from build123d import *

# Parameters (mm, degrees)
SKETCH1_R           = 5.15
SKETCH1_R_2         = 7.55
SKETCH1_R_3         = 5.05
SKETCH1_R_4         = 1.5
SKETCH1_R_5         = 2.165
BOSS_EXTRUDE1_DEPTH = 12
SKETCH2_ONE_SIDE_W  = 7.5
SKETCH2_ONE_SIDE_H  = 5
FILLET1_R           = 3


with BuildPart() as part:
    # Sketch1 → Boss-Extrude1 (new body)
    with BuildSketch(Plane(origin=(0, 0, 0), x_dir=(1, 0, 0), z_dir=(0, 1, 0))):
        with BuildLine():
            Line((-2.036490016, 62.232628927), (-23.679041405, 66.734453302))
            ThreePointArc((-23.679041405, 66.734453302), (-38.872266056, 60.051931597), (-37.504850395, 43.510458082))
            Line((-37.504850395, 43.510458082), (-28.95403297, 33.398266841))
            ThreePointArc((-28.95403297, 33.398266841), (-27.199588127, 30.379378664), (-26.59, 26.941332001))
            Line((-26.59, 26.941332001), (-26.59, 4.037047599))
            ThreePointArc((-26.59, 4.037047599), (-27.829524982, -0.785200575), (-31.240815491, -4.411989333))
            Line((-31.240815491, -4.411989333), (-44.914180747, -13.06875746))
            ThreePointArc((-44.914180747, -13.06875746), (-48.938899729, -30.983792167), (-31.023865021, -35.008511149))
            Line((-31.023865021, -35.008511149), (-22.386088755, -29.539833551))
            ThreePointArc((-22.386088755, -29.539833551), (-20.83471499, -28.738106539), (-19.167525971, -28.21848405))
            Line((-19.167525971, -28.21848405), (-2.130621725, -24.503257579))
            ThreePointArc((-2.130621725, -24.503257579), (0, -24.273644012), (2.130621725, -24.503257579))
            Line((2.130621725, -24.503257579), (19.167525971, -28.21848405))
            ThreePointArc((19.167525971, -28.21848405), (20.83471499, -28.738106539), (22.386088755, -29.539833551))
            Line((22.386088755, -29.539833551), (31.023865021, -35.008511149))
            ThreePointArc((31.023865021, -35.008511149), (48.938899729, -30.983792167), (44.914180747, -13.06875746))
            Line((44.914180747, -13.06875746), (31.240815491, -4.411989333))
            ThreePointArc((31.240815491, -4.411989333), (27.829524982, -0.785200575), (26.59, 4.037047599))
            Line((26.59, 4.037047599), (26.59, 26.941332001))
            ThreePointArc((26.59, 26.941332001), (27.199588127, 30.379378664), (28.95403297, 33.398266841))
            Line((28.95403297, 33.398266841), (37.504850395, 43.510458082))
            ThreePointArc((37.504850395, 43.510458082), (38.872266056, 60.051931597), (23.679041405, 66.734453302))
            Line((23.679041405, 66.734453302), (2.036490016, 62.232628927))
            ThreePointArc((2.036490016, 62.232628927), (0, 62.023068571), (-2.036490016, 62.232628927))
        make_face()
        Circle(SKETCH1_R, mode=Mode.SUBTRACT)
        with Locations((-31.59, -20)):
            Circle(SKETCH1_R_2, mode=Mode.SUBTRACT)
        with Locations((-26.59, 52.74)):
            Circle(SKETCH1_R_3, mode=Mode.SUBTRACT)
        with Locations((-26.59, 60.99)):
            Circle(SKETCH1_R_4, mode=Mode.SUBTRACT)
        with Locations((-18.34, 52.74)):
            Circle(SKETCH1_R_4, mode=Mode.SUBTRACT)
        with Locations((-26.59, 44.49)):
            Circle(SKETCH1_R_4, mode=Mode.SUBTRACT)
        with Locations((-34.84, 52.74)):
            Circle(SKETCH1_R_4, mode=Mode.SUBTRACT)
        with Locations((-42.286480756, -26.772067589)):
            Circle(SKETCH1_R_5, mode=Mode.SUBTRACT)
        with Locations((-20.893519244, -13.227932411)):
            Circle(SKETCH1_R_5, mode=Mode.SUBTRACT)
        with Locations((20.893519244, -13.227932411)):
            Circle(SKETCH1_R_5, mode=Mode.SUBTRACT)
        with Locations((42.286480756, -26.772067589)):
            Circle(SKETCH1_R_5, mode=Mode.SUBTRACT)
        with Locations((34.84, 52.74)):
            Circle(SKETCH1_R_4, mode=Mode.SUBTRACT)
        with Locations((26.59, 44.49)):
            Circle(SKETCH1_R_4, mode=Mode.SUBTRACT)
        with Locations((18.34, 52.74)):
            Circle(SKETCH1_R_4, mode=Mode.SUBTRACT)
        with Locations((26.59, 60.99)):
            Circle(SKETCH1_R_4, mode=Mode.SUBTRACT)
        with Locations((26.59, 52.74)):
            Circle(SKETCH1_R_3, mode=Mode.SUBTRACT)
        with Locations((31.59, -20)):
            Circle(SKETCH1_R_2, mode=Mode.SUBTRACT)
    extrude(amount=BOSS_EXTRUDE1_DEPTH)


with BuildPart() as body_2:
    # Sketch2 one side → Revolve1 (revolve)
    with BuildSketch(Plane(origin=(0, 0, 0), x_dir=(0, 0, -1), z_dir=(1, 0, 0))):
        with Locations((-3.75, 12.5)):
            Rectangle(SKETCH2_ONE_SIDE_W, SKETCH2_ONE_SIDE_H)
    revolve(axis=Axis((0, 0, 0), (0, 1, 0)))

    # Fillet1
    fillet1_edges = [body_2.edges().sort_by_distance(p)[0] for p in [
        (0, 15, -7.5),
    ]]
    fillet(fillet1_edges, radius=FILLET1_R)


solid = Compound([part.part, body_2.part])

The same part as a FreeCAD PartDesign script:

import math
import FreeCAD as App
import Part
import Sketcher
from FreeCAD import Vector


def edges_at(feature, points):
    """Names of the edges that pass closest to the given points."""
    edges = feature.Shape.Edges
    near = lambda p: min(range(len(edges)), key=lambda i: edges[i].distToShape(Part.Vertex(*p))[0])
    return sorted({f"Edge{near(p) + 1}" for p in points})


def add_polygon(sketch, points):
    """Adds a closed chain of lines whose ends are joined by coincident constraints."""
    first, n = sketch.GeometryCount, len(points)
    for a, b in zip(points, points[1:] + points[:1]):
        sketch.addGeometry(Part.LineSegment(App.Vector(*a, 0), App.Vector(*b, 0)), False)
    for i in range(n):
        sketch.addConstraint(Sketcher.Constraint("Coincident", first + i, 2, first + (i + 1) % n, 1))

doc = App.newDocument("Part")
body = doc.addObject("PartDesign::Body", "Body")

# Sketch on XZ plane
sketch1 = body.newObject("Sketcher::SketchObject", "Sketch")
sketch1.AttachmentSupport = (doc.getObject("XZ_Plane"), [""])
sketch1.MapMode = "FlatFace"
sketch1.addGeometry(Part.LineSegment(Vector(-2, -62.2, 0), Vector(-23.7, -66.7, 0)), False)
sketch1.addGeometry(Part.ArcOfCircle(Part.Circle(Vector(-26.6, -52.7, 0), Vector(0, 0, 1), 14.3), math.radians(140), math.radians(282)), False)
sketch1.addGeometry(Part.LineSegment(Vector(-37.5, -43.5, 0), Vector(-29, -33.4, 0)), False)
sketch1.addGeometry(Part.ArcOfCircle(Part.Circle(Vector(-36.6, -26.9, 0), Vector(0, 0, 1), 10), math.radians(-40), math.radians(0)), False)
sketch1.addGeometry(Part.LineSegment(Vector(-26.6, -26.9, 0), Vector(-26.6, -4, 0)), False)
sketch1.addGeometry(Part.ArcOfCircle(Part.Circle(Vector(-36.6, -4, 0), Vector(0, 0, 1), 10), math.radians(0), math.radians(58)), False)
sketch1.addGeometry(Part.LineSegment(Vector(-31.2, 4.4, 0), Vector(-44.9, 13.1, 0)), False)
sketch1.addGeometry(Part.ArcOfCircle(Part.Circle(Vector(-38, 24, 0), Vector(0, 0, 1), 13), math.radians(58), math.radians(238)), False)
sketch1.addGeometry(Part.LineSegment(Vector(-31, 35, 0), Vector(-22.4, 29.5, 0)), False)
sketch1.addGeometry(Part.ArcOfCircle(Part.Circle(Vector(-17, 38, 0), Vector(0, 0, 1), 10), math.radians(-122), math.radians(-102)), False)
sketch1.addGeometry(Part.LineSegment(Vector(-19.2, 28.2, 0), Vector(-2.1, 24.5, 0)), False)
sketch1.addGeometry(Part.ArcOfCircle(Part.Circle(Vector(0, 34.3, 0), Vector(0, 0, 1), 10), math.radians(-102), math.radians(-78)), False)
sketch1.addGeometry(Part.LineSegment(Vector(2.1, 24.5, 0), Vector(19.2, 28.2, 0)), False)
sketch1.addGeometry(Part.ArcOfCircle(Part.Circle(Vector(17, 38, 0), Vector(0, 0, 1), 10), math.radians(-78), math.radians(-58)), False)
sketch1.addGeometry(Part.LineSegment(Vector(22.4, 29.5, 0), Vector(31, 35, 0)), False)
sketch1.addGeometry(Part.ArcOfCircle(Part.Circle(Vector(38, 24, 0), Vector(0, 0, 1), 13), math.radians(-58), math.radians(122)), False)
sketch1.addGeometry(Part.LineSegment(Vector(44.9, 13.1, 0), Vector(31.2, 4.4, 0)), False)
sketch1.addGeometry(Part.ArcOfCircle(Part.Circle(Vector(36.6, -4, 0), Vector(0, 0, 1), 10), math.radians(122), math.radians(180)), False)
sketch1.addGeometry(Part.LineSegment(Vector(26.6, -4, 0), Vector(26.6, -26.9, 0)), False)
sketch1.addGeometry(Part.ArcOfCircle(Part.Circle(Vector(36.6, -26.9, 0), Vector(0, 0, 1), 10), math.radians(180), math.radians(220)), False)
sketch1.addGeometry(Part.LineSegment(Vector(29, -33.4, 0), Vector(37.5, -43.5, 0)), False)
sketch1.addGeometry(Part.ArcOfCircle(Part.Circle(Vector(26.6, -52.7, 0), Vector(0, 0, 1), 14.3), math.radians(-102), math.radians(40)), False)
sketch1.addGeometry(Part.LineSegment(Vector(23.7, -66.7, 0), Vector(2, -62.2, 0)), False)
sketch1.addGeometry(Part.ArcOfCircle(Part.Circle(Vector(0, -72, 0), Vector(0, 0, 1), 10), math.radians(78), math.radians(102)), False)
sketch1.addGeometry(Part.Circle(Vector(-42.3, 26.8, 0), Vector(0, 0, 1), 2.2), False)
sketch1.addGeometry(Part.Circle(Vector(-31.6, 20, 0), Vector(0, 0, 1), 7.5), False)
sketch1.addGeometry(Part.Circle(Vector(-20.9, 13.2, 0), Vector(0, 0, 1), 2.2), False)
sketch1.addGeometry(Part.Circle(Vector(20.9, 13.2, 0), Vector(0, 0, 1), 2.2), False)
sketch1.addGeometry(Part.Circle(Vector(31.6, 20, 0), Vector(0, 0, 1), 7.5), False)
sketch1.addGeometry(Part.Circle(Vector(42.3, 26.8, 0), Vector(0, 0, 1), 2.2), False)
sketch1.addGeometry(Part.Circle(Vector(0, 0, 0), Vector(0, 0, 1), 5.2), False)
sketch1.addGeometry(Part.Circle(Vector(-26.6, -44.5, 0), Vector(0, 0, 1), 1.5), False)
sketch1.addGeometry(Part.Circle(Vector(-34.8, -52.7, 0), Vector(0, 0, 1), 1.5), False)
sketch1.addGeometry(Part.Circle(Vector(-26.6, -52.7, 0), Vector(0, 0, 1), 5), False)
sketch1.addGeometry(Part.Circle(Vector(-26.6, -61, 0), Vector(0, 0, 1), 1.5), False)
sketch1.addGeometry(Part.Circle(Vector(-18.3, -52.7, 0), Vector(0, 0, 1), 1.5), False)
sketch1.addGeometry(Part.Circle(Vector(18.3, -52.7, 0), Vector(0, 0, 1), 1.5), False)
sketch1.addGeometry(Part.Circle(Vector(26.6, -44.5, 0), Vector(0, 0, 1), 1.5), False)
sketch1.addGeometry(Part.Circle(Vector(26.6, -52.7, 0), Vector(0, 0, 1), 5), False)
sketch1.addGeometry(Part.Circle(Vector(26.6, -61, 0), Vector(0, 0, 1), 1.5), False)
sketch1.addGeometry(Part.Circle(Vector(34.8, -52.7, 0), Vector(0, 0, 1), 1.5), False)
sketch1.addConstraint(Sketcher.Constraint("Tangent", 0, 2, 1, 2))
sketch1.addConstraint(Sketcher.Constraint("Tangent", 1, 1, 2, 1))
sketch1.addConstraint(Sketcher.Constraint("Tangent", 2, 2, 3, 1))
sketch1.addConstraint(Sketcher.Constraint("Tangent", 3, 2, 4, 1))
sketch1.addConstraint(Sketcher.Constraint("Tangent", 4, 2, 5, 1))
sketch1.addConstraint(Sketcher.Constraint("Tangent", 5, 2, 6, 1))
sketch1.addConstraint(Sketcher.Constraint("Tangent", 6, 2, 7, 2))
sketch1.addConstraint(Sketcher.Constraint("Tangent", 7, 1, 8, 1))
sketch1.addConstraint(Sketcher.Constraint("Tangent", 8, 2, 9, 1))
sketch1.addConstraint(Sketcher.Constraint("Tangent", 9, 2, 10, 1))
sketch1.addConstraint(Sketcher.Constraint("Tangent", 10, 2, 11, 1))
sketch1.addConstraint(Sketcher.Constraint("Tangent", 11, 2, 12, 1))
sketch1.addConstraint(Sketcher.Constraint("Tangent", 12, 2, 13, 1))
sketch1.addConstraint(Sketcher.Constraint("Tangent", 13, 2, 14, 1))
sketch1.addConstraint(Sketcher.Constraint("Tangent", 14, 2, 15, 2))
sketch1.addConstraint(Sketcher.Constraint("Tangent", 15, 1, 16, 1))
sketch1.addConstraint(Sketcher.Constraint("Tangent", 16, 2, 17, 1))
sketch1.addConstraint(Sketcher.Constraint("Tangent", 17, 2, 18, 1))
sketch1.addConstraint(Sketcher.Constraint("Tangent", 18, 2, 19, 1))
sketch1.addConstraint(Sketcher.Constraint("Tangent", 19, 2, 20, 1))
sketch1.addConstraint(Sketcher.Constraint("Tangent", 20, 2, 21, 2))
sketch1.addConstraint(Sketcher.Constraint("Tangent", 21, 1, 22, 1))
sketch1.addConstraint(Sketcher.Constraint("Tangent", 22, 2, 23, 1))
sketch1.addConstraint(Sketcher.Constraint("Tangent", 23, 2, 0, 1))
sketch1.addConstraint(Sketcher.Constraint("Vertical", 4))
sketch1.addConstraint(Sketcher.Constraint("Vertical", 18))
sketch1.addConstraint(Sketcher.Constraint("Coincident", 30, 3, -1, 1))
sketch1.addConstraint(Sketcher.Constraint("Coincident", 33, 3, 1, 3))
sketch1.addConstraint(Sketcher.Constraint("Coincident", 38, 3, 21, 3))
sketch1.addConstraint(Sketcher.Constraint("Equal", 3, 5))
sketch1.addConstraint(Sketcher.Constraint("Equal", 5, 9))
sketch1.addConstraint(Sketcher.Constraint("Equal", 9, 11))
sketch1.addConstraint(Sketcher.Constraint("Equal", 11, 13))
sketch1.addConstraint(Sketcher.Constraint("Equal", 7, 15))
sketch1.addConstraint(Sketcher.Constraint("Equal", 13, 17))
sketch1.addConstraint(Sketcher.Constraint("Equal", 17, 19))
sketch1.addConstraint(Sketcher.Constraint("Equal", 1, 21))
sketch1.addConstraint(Sketcher.Constraint("Equal", 19, 23))
sketch1.addConstraint(Sketcher.Constraint("Equal", 24, 26))
sketch1.addConstraint(Sketcher.Constraint("Equal", 26, 27))
sketch1.addConstraint(Sketcher.Constraint("Equal", 25, 28))
sketch1.addConstraint(Sketcher.Constraint("Equal", 27, 29))
sketch1.addConstraint(Sketcher.Constraint("Equal", 31, 32))
sketch1.addConstraint(Sketcher.Constraint("Equal", 32, 34))
sketch1.addConstraint(Sketcher.Constraint("Equal", 34, 35))
sketch1.addConstraint(Sketcher.Constraint("Equal", 35, 36))
sketch1.addConstraint(Sketcher.Constraint("Equal", 36, 37))
sketch1.addConstraint(Sketcher.Constraint("Equal", 33, 38))
sketch1.addConstraint(Sketcher.Constraint("Equal", 37, 39))
sketch1.addConstraint(Sketcher.Constraint("Equal", 39, 40))
sketch1.addConstraint(Sketcher.Constraint("Symmetric", 9, 3, 13, 3, -2))
sketch1.addConstraint(Sketcher.Constraint("Symmetric", 7, 3, 15, 3, -2))
sketch1.addConstraint(Sketcher.Constraint("Symmetric", 5, 3, 17, 3, -2))
sketch1.addConstraint(Sketcher.Constraint("Symmetric", 1, 3, 21, 3, -2))
sketch1.addConstraint(Sketcher.Constraint("Symmetric", 26, 3, 27, 3, -2))
sketch1.addConstraint(Sketcher.Constraint("Symmetric", 25, 3, 28, 3, -2))
sketch1.addConstraint(Sketcher.Constraint("Symmetric", 24, 3, 29, 3, -2))
sketch1.addConstraint(Sketcher.Constraint("Symmetric", 35, 3, 36, 3, -2))
sketch1.addConstraint(Sketcher.Constraint("Symmetric", 31, 3, 37, 3, -2))
sketch1.addConstraint(Sketcher.Constraint("Symmetric", 34, 3, 39, 3, -2))
sketch1.addConstraint(Sketcher.Constraint("Symmetric", 32, 3, 40, 3, -2))
sketch1.addConstraint(Sketcher.Constraint("PointOnObject", 11, 3, -2))
sketch1.addConstraint(Sketcher.Constraint("PointOnObject", 23, 3, -2))
sketch1.addConstraint(Sketcher.Constraint("Parallel", 6, 8))
sketch1.addConstraint(Sketcher.Constraint("Horizontal", 3, 3, 19, 3))
sketch1.addConstraint(Sketcher.Constraint("Horizontal", 21, 3, 32, 3))
sketch1.addConstraint(Sketcher.Constraint("Horizontal", 33, 3, 35, 3))
sketch1.addConstraint(Sketcher.Constraint("Vertical", 1, 3, 31, 3))
sketch1.addConstraint(Sketcher.Constraint("Vertical", 33, 3, 34, 3))
sketch1.addConstraint(Sketcher.Constraint("Vertical", 34, 3, 3, 2))
sketch1.addConstraint(Sketcher.Constraint("Diameter", 31, 3.0))
sketch1.addConstraint(Sketcher.Constraint("Radius", 3, 10.0))
sketch1.addConstraint(Sketcher.Constraint("Diameter", 25, 15.1))
sketch1.addConstraint(Sketcher.Constraint("Diameter", 30, 10.3))
sketch1.addConstraint(Sketcher.Constraint("Diameter", 33, 10.1))
sketch1.addConstraint(Sketcher.Constraint("Diameter", 24, 4.33))
sketch1.addConstraint(Sketcher.Constraint("DistanceY", -1, 1, 25, 3, 20.0))
sketch1.addConstraint(Sketcher.Constraint("Radius", 1, 14.293999))
sketch1.addConstraint(Sketcher.Constraint("DistanceX", 5, 3, 25, 3, 5.0))
sketch1.addConstraint(Sketcher.Constraint("DistanceY", 34, 3, 31, 3, 16.5))
sketch1.addConstraint(Sketcher.Constraint("DistanceX", 32, 3, 35, 3, 16.5))
sketch1.addConstraint(Sketcher.Constraint("DistanceX", 1, 3, -1, 1, 26.59))
sketch1.addConstraint(Sketcher.Constraint("DistanceY", 1, 3, -1, 1, 52.74))
sketch1.addConstraint(Sketcher.Constraint("DistanceY", 31, 3, -1, 1, 44.49))
sketch1.addConstraint(Sketcher.Constraint("DistanceX", 32, 3, -1, 1, 34.84))
sketch1.addConstraint(Sketcher.Constraint("Radius", 7, 12.983583))
sketch1.addConstraint(Sketcher.Constraint("Distance", 0, 22.105801))
sketch1.addConstraint(Sketcher.Constraint("DistanceY", 3, 3, 24, 3, 53.7134))
sketch1.addConstraint(Sketcher.Constraint("DistanceY", 26, 3, 7, 3, 10.810702))
sketch1.addConstraint(Sketcher.Constraint("DistanceX", 6, 2, 24, 3, 2.6277))
sketch1.addConstraint(Sketcher.Constraint("DistanceY", 26, 3, 8, 2, 16.311901))
sketch1.addConstraint(Sketcher.Constraint("Distance", 6, 16.183342))
sketch1.addConstraint(Sketcher.Constraint("Distance", 10, 17.437288))
sketch1.addConstraint(Sketcher.Constraint("DistanceY", 4, 1, 4, 2, 22.904284))
sketch1.addConstraint(Sketcher.Constraint("DistanceY", -1, 1, 9, 3, 37.98887))
sketch1.addConstraint(Sketcher.Constraint("DistanceX", 24, 3, -1, 1, 42.286481))
sketch1.addConstraint(Sketcher.Constraint("DistanceX", 26, 3, -1, 1, 20.893519))
pad1 = body.newObject("PartDesign::Pad", "Pad")
pad1.Profile = sketch1
pad1.Length = 12
pad1.Reversed = True
body2 = doc.addObject("PartDesign::Body", "Body001")

# Sketch on YZ plane
sketch2 = body2.newObject("Sketcher::SketchObject", "Sketch001")
sketch2.AttachmentSupport = (doc.getObject("YZ_Plane001"), [""])
sketch2.MapMode = "FlatFace"
add_polygon(sketch2, [(15, 8), (10, 8), (10, 0), (15, 0)])  # lines 0-3
sketch2.addConstraint(Sketcher.Constraint("Horizontal", 0))
sketch2.addConstraint(Sketcher.Constraint("Vertical", 1))
sketch2.addConstraint(Sketcher.Constraint("Horizontal", 2))
sketch2.addConstraint(Sketcher.Constraint("Vertical", 3))
sketch2.addConstraint(Sketcher.Constraint("PointOnObject", 1, 2, -1))
sketch2.addConstraint(Sketcher.Constraint("DistanceX", 0, 2, 0, 1, 5.0))
sketch2.addConstraint(Sketcher.Constraint("DistanceY", 1, 2, 1, 1, 7.5))
sketch2.addConstraint(Sketcher.Constraint("DistanceX", -1, 1, 0, 2, 10.0))
revolution = body2.newObject("PartDesign::Revolution", "Revolution")
revolution.Profile = sketch2
revolution.ReferenceAxis = (sketch2, ["H_Axis"])
revolution.Angle = 360
doc.recompute()

fillet = body2.newObject("PartDesign::Fillet", "Fillet")
fillet.Base = (revolution, edges_at(revolution, [(0, 15, -7.5)]))
fillet.Radius = 3

doc.recompute()
